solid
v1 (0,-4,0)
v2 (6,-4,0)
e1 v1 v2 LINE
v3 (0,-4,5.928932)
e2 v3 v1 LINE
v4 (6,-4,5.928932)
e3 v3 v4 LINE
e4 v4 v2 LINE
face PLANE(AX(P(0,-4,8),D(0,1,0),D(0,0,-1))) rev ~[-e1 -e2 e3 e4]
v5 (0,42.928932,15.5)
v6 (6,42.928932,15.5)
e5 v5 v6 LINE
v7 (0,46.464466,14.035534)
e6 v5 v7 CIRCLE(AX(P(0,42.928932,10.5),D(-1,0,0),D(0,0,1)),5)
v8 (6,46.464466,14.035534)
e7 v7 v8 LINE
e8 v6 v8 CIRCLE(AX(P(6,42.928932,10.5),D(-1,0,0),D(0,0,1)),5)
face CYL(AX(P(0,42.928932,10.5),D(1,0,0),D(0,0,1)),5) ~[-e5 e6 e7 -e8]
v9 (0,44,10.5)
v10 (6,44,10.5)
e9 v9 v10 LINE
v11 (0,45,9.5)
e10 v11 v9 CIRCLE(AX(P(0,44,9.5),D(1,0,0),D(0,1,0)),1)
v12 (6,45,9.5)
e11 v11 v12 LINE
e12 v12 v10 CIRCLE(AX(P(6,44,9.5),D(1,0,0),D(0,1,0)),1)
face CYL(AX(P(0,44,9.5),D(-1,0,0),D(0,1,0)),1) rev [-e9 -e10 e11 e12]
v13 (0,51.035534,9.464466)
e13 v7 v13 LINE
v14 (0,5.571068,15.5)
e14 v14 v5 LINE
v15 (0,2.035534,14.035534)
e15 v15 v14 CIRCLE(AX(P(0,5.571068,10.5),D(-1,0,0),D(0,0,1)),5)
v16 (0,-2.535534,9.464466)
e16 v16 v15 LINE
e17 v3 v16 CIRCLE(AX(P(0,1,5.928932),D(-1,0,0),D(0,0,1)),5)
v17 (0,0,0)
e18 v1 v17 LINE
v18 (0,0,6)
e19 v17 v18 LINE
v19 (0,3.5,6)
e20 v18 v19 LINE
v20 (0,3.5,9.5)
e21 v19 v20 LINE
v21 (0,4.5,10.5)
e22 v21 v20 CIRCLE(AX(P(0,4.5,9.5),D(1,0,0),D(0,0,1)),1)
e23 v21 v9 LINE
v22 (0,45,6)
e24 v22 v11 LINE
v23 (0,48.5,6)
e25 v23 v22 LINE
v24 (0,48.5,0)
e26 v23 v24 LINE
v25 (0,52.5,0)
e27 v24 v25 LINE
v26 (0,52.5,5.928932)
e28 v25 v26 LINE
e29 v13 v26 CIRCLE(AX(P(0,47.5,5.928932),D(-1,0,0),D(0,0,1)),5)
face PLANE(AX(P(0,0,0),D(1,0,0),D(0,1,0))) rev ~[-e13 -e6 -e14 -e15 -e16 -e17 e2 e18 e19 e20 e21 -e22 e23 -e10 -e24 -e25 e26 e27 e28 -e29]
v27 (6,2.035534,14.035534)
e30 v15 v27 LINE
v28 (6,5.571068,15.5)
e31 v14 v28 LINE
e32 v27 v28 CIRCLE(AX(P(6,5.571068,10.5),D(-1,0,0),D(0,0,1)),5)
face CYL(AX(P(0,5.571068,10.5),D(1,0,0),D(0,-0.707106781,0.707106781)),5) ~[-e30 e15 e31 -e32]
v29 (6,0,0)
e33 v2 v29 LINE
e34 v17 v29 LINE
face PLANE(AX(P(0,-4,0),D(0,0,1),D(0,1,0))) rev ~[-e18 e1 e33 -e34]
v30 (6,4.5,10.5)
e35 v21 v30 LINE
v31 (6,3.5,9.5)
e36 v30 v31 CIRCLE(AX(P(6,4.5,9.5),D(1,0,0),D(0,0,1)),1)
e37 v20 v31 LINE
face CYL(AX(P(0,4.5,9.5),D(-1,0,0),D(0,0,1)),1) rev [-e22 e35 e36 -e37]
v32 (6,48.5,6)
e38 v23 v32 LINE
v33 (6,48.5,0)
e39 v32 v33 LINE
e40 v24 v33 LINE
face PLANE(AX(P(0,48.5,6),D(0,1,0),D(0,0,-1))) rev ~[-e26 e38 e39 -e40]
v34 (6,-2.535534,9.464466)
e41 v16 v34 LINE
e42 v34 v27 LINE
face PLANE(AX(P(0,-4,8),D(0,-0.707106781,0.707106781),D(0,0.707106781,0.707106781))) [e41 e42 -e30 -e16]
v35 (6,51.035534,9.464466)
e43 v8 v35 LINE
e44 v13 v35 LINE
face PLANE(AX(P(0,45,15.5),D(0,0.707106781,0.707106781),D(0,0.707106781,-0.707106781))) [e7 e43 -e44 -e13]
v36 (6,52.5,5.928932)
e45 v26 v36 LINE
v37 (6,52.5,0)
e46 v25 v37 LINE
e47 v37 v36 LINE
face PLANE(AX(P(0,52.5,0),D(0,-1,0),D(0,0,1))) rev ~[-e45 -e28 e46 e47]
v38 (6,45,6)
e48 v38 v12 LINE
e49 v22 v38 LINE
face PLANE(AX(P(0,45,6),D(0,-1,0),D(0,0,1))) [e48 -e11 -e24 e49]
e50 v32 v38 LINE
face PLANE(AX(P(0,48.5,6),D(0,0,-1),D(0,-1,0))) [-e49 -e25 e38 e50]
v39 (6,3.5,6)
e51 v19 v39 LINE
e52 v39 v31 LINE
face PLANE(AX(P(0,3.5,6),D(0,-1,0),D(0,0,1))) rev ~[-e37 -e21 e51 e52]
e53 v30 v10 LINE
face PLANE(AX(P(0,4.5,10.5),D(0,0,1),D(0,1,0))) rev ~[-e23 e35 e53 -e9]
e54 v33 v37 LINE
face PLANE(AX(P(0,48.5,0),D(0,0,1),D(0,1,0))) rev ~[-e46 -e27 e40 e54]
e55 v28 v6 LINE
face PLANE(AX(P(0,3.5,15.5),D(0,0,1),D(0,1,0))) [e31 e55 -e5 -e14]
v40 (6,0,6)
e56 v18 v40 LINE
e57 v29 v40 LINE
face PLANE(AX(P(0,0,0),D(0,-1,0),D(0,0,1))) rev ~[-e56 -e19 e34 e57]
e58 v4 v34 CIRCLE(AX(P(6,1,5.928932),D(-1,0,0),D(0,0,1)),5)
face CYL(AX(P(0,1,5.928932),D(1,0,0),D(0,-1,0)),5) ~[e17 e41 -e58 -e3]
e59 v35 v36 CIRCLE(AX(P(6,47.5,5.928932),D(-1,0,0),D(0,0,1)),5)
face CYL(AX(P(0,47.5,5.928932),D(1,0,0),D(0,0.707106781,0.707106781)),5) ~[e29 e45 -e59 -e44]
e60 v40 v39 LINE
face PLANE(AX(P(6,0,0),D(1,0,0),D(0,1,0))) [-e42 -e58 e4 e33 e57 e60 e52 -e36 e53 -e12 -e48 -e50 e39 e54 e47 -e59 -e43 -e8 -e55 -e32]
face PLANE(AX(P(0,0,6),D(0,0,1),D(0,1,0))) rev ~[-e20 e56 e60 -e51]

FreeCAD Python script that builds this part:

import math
import FreeCAD as App
import Part
import Sketcher
Q = App.Units.Quantity


def edges_at(feature, points):
    """Names of the edges that pass closest to the given points."""
    edges = feature.Shape.Edges
    near = lambda p: min(range(len(edges)), key=lambda i: edges[i].distToShape(Part.Vertex(*p))[0])
    return sorted({f"Edge{near(p) + 1}" for p in points})

doc = App.newDocument("Part")
body = doc.addObject("PartDesign::Body", "Body")

# Sketch on YZ plane
sketch1 = body.newObject("Sketcher::SketchObject", "Sketch")
sketch1.AttachmentSupport = (doc.getObject("YZ_Plane"), [""])
sketch1.MapMode = "FlatFace"
sketch1.addGeometry(Part.LineSegment(App.Vector(48.5, 6, 0), App.Vector(48.5, 0, 0)), False)
sketch1.addGeometry(Part.LineSegment(App.Vector(48.5, 0, 0), App.Vector(52.5, 0, 0)), False)
sketch1.addGeometry(Part.LineSegment(App.Vector(52.5, 0, 0), App.Vector(52.5, 8, 0)), False)
sketch1.addGeometry(Part.LineSegment(App.Vector(52.5, 8, 0), App.Vector(45, 15.5, 0)), False)
sketch1.addGeometry(Part.LineSegment(App.Vector(45, 15.5, 0), App.Vector(3.5, 15.5, 0)), False)
sketch1.addGeometry(Part.LineSegment(App.Vector(3.5, 15.5, 0), App.Vector(-4, 8, 0)), False)
sketch1.addGeometry(Part.LineSegment(App.Vector(-4, 8, 0), App.Vector(-4, 0, 0)), False)
sketch1.addGeometry(Part.LineSegment(App.Vector(-4, 0, 0), App.Vector(0, 0, 0)), False)
sketch1.addGeometry(Part.LineSegment(App.Vector(0, 0, 0), App.Vector(0, 6, 0)), False)
sketch1.addGeometry(Part.LineSegment(App.Vector(0, 6, 0), App.Vector(3.5, 6, 0)), False)
sketch1.addGeometry(Part.LineSegment(App.Vector(3.5, 6, 0), App.Vector(3.5, 9.5, 0)), False)
sketch1.addGeometry(Part.ArcOfCircle(Part.Circle(App.Vector(4.5, 9.5, 0), App.Vector(0, 0, 1), 1), math.radians(90), math.radians(180)), False)
sketch1.addGeometry(Part.LineSegment(App.Vector(4.5, 10.5, 0), App.Vector(44, 10.5, 0)), False)
sketch1.addGeometry(Part.ArcOfCircle(Part.Circle(App.Vector(44, 9.5, 0), App.Vector(0, 0, 1), 1), math.radians(0), math.radians(90)), False)
sketch1.addGeometry(Part.LineSegment(App.Vector(45, 9.5, 0), App.Vector(45, 6, 0)), False)
sketch1.addGeometry(Part.LineSegment(App.Vector(45, 6, 0), App.Vector(48.5, 6, 0)), False)
sketch1.addConstraint(Sketcher.Constraint("Coincident", 0, 2, 1, 1))
sketch1.addConstraint(Sketcher.Constraint("Coincident", 1, 2, 2, 1))
sketch1.addConstraint(Sketcher.Constraint("Coincident", 2, 2, 3, 1))
sketch1.addConstraint(Sketcher.Constraint("Coincident", 3, 2, 4, 1))
sketch1.addConstraint(Sketcher.Constraint("Coincident", 4, 2, 5, 1))
sketch1.addConstraint(Sketcher.Constraint("Coincident", 5, 2, 6, 1))
sketch1.addConstraint(Sketcher.Constraint("Coincident", 6, 2, 7, 1))
sketch1.addConstraint(Sketcher.Constraint("Coincident", 7, 2, 8, 1))
sketch1.addConstraint(Sketcher.Constraint("Coincident", 8, 2, 9, 1))
sketch1.addConstraint(Sketcher.Constraint("Coincident", 9, 2, 10, 1))
sketch1.addConstraint(Sketcher.Constraint("Tangent", 10, 2, 11, 2))
sketch1.addConstraint(Sketcher.Constraint("Tangent", 11, 1, 12, 1))
sketch1.addConstraint(Sketcher.Constraint("Tangent", 12, 2, 13, 2))
sketch1.addConstraint(Sketcher.Constraint("Tangent", 13, 1, 14, 1))
sketch1.addConstraint(Sketcher.Constraint("Coincident", 14, 2, 15, 1))
sketch1.addConstraint(Sketcher.Constraint("Coincident", 15, 2, 0, 1))
sketch1.addConstraint(Sketcher.Constraint("Vertical", 0))
sketch1.addConstraint(Sketcher.Constraint("Horizontal", 1))
sketch1.addConstraint(Sketcher.Constraint("Vertical", 2))
sketch1.addConstraint(Sketcher.Constraint("Horizontal", 4))
sketch1.addConstraint(Sketcher.Constraint("Vertical", 6))
sketch1.addConstraint(Sketcher.Constraint("Horizontal", 7))
sketch1.addConstraint(Sketcher.Constraint("Vertical", 8))
sketch1.addConstraint(Sketcher.Constraint("Horizontal", 9))
sketch1.addConstraint(Sketcher.Constraint("Vertical", 10))
sketch1.addConstraint(Sketcher.Constraint("Horizontal", 12))
sketch1.addConstraint(Sketcher.Constraint("Vertical", 14))
sketch1.addConstraint(Sketcher.Constraint("Horizontal", 15))
sketch1.addConstraint(Sketcher.Constraint("Coincident", 7, 2, -1, 1))
sketch1.addConstraint(Sketcher.Constraint("Equal", 11, 13))
sketch1.addConstraint(Sketcher.Constraint("PointOnObject", 0, 2, -1))
sketch1.addConstraint(Sketcher.Constraint("Perpendicular", 3, 5))
sketch1.addConstraint(Sketcher.Constraint("Horizontal", 2, 2, 5, 2))
sketch1.addConstraint(Sketcher.Constraint("Horizontal", 9, 2, 14, 2))
sketch1.addConstraint(Sketcher.Constraint("Vertical", 4, 2, 9, 2))
sketch1.addConstraint(Sketcher.Constraint("Vertical", 3, 2, 13, 1))
sketch1.addConstraint(Sketcher.Constraint("Equal", 1, 7))
sketch1.addConstraint(Sketcher.Constraint("Equal", 9, 15))
sketch1.addConstraint(Sketcher.Constraint("Equal", 15, 10))
sketch1.addConstraint(Sketcher.Constraint("Radius", 11, Q("1 mm")))
sketch1.addConstraint(Sketcher.Constraint("DistanceX", 1, 1, 1, 2, Q("4 mm")))
sketch1.addConstraint(Sketcher.Constraint("DistanceY", 0, 2, 0, 1, Q("6 mm")))
sketch1.addConstraint(Sketcher.Constraint("DistanceY", 2, 1, 2, 2, Q("8 mm")))
sketch1.addConstraint(Sketcher.Constraint("DistanceX", 9, 1, 9, 2, Q("3.5 mm")))
sketch1.addConstraint(Sketcher.Constraint("DistanceX", -1, 1, 0, 2, Q("48.5 mm")))
pad1 = body.newObject("PartDesign::Pad", "Pad")
pad1.Profile = sketch1
pad1.Length = 6
doc.recompute()

fillet = body.newObject("PartDesign::Fillet", "Fillet")
fillet.Base = (pad1, edges_at(pad1, [
    (3, 3.5, 15.5),
    (3, 45, 15.5),
    (3, 52.5, 8),
    (3, -4, 8),
]))
fillet.Radius = 5

doc.recompute()
